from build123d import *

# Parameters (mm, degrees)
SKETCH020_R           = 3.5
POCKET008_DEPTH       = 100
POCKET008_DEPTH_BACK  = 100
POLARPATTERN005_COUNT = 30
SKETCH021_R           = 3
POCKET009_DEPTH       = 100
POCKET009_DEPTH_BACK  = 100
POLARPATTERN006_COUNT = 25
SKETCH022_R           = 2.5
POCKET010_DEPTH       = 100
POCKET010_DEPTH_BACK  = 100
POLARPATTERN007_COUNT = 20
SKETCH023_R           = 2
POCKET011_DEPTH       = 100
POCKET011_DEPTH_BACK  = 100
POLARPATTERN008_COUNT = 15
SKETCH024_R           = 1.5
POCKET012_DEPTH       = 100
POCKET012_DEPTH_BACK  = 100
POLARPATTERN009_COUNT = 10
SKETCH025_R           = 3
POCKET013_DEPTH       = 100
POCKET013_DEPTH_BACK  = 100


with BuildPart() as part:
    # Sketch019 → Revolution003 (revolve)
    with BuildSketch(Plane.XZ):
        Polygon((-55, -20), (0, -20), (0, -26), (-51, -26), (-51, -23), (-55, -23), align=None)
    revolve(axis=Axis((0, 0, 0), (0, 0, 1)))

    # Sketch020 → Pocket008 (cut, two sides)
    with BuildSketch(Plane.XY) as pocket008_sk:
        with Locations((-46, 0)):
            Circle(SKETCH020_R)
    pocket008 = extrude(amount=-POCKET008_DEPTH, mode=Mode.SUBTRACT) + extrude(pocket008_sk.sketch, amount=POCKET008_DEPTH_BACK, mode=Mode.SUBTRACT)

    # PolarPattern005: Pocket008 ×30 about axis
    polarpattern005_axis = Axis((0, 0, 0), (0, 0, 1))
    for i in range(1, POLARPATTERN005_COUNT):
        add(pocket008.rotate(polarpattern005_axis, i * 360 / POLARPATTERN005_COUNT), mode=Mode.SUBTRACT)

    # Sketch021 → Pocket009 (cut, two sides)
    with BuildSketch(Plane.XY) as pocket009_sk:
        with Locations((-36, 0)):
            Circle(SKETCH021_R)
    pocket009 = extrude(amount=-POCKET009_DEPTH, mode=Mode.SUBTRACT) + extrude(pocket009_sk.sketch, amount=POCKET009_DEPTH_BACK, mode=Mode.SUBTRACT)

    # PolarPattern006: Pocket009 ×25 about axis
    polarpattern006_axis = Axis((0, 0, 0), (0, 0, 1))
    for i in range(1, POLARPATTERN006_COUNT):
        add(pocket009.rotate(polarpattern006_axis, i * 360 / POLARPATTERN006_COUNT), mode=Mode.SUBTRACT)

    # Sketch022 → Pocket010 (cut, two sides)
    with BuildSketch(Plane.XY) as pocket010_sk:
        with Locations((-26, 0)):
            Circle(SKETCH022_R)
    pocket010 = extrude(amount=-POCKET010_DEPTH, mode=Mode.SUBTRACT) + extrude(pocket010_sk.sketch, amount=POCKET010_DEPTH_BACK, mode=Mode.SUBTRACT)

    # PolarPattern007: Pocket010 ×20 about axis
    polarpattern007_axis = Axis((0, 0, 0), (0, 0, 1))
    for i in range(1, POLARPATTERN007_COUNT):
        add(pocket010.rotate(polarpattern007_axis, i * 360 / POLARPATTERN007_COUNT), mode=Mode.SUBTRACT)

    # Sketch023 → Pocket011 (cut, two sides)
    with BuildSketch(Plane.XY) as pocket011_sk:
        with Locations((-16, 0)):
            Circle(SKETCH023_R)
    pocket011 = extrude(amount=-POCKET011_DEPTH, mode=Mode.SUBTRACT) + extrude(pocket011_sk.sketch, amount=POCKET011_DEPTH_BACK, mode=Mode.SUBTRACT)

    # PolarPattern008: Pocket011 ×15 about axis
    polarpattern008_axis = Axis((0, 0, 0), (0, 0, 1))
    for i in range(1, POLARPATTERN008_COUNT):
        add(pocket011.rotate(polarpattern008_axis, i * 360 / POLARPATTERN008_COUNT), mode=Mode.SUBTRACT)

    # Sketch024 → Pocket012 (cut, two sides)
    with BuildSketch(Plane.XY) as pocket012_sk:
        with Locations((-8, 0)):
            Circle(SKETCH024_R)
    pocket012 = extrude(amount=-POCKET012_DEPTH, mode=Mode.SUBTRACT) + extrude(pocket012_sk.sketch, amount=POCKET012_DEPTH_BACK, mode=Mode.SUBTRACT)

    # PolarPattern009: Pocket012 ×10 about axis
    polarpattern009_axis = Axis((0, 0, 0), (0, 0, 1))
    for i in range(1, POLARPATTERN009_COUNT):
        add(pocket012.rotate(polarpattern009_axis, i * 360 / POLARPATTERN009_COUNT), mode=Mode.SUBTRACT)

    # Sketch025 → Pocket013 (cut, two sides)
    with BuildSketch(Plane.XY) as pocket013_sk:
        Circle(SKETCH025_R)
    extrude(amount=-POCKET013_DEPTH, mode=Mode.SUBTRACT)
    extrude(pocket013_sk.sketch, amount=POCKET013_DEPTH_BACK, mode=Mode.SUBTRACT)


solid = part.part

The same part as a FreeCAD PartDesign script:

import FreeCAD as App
import Part
import Sketcher
from FreeCAD import Vector

doc = App.newDocument("Part")
body = doc.addObject("PartDesign::Body", "Body")

sketch1 = body.newObject("Sketcher::SketchObject", "Sketch")
sketch1.AttachmentSupport = (doc.getObject("XZ_Plane"), [""])
sketch1.MapMode = "FlatFace"
sketch1.addGeometry([
    Part.LineSegment(Vector(0, -20, 0), Vector(-55, -20, 0)),
    Part.LineSegment(Vector(-55, -20, 0), Vector(-55, -23, 0)),
    Part.LineSegment(Vector(-55, -23, 0), Vector(-51, -23, 0)),
    Part.LineSegment(Vector(-51, -23, 0), Vector(-51, -26, 0)),
    Part.LineSegment(Vector(-51, -26, 0), Vector(0, -26, 0)),
    Part.LineSegment(Vector(0, -26, 0), Vector(0, -20, 0)),
], False)
sketch1.addConstraint([
    Sketcher.Constraint("Coincident", 0, 2, 1, 1),
    Sketcher.Constraint("Coincident", 1, 2, 2, 1),
    Sketcher.Constraint("Coincident", 2, 2, 3, 1),
    Sketcher.Constraint("Coincident", 3, 2, 4, 1),
    Sketcher.Constraint("Coincident", 4, 2, 5, 1),
    Sketcher.Constraint("Coincident", 5, 2, 0, 1),
    Sketcher.Constraint("Horizontal", 0),
    Sketcher.Constraint("Vertical", 1),
    Sketcher.Constraint("Horizontal", 2),
    Sketcher.Constraint("Vertical", 3),
    Sketcher.Constraint("Horizontal", 4),
    Sketcher.Constraint("Vertical", 5),
    Sketcher.Constraint("PointOnObject", 4, 2, -2),
    Sketcher.Constraint("Equal", 1, 3),
    Sketcher.Constraint("DistanceX", 0, 2, 0, 1, 55.0),
    Sketcher.Constraint("DistanceX", 2, 1, 2, 2, 4.0),
    Sketcher.Constraint("DistanceY", 1, 2, 1, 1, 3.0),
    Sketcher.Constraint("DistanceY", 0, 2, -1, 1, 20.0),
])
revolution = body.newObject("PartDesign::Revolution", "Revolution")
revolution.Profile = sketch1
revolution.ReferenceAxis = (sketch1, ["V_Axis"])
revolution.Angle = 360

sketch2 = body.newObject("Sketcher::SketchObject", "Sketch001")
sketch2.AttachmentSupport = (doc.getObject("XY_Plane"), [""])
sketch2.MapMode = "FlatFace"
sketch2.addGeometry(Part.Circle(Vector(-46, 0, 0), Vector(0, 0, 1), 3.5), False)
sketch2.addConstraint([
    Sketcher.Constraint("PointOnObject", 0, 3, -1),
    Sketcher.Constraint("Diameter", 0, 7.0),
    Sketcher.Constraint("DistanceX", 0, 3, -1, 1, 46.0),
])
pocket1 = body.newObject("PartDesign::Pocket", "Pocket")
pocket1.Profile = sketch2
pocket1.Type = "ThroughAll"
pocket1.Midplane = True
doc.recompute()

polarpattern = body.newObject("PartDesign::PolarPattern", "PolarPattern")
polarpattern.Originals = [pocket1]
polarpattern.Axis = (doc.getObject("Z_Axis"), [""])
polarpattern.Angle = 360
polarpattern.Occurrences = 30
body.Tip = polarpattern

sketch3 = body.newObject("Sketcher::SketchObject", "Sketch002")
sketch3.AttachmentSupport = (doc.getObject("XY_Plane"), [""])
sketch3.MapMode = "FlatFace"
sketch3.addGeometry(Part.Circle(Vector(-36, 0, 0), Vector(0, 0, 1), 3), False)
sketch3.addConstraint([
    Sketcher.Constraint("PointOnObject", 0, 3, -1),
    Sketcher.Constraint("Diameter", 0, 6.0),
    Sketcher.Constraint("DistanceX", 0, 3, -1, 1, 36.0),
])
pocket2 = body.newObject("PartDesign::Pocket", "Pocket001")
pocket2.Profile = sketch3
pocket2.Type = "ThroughAll"
pocket2.Midplane = True
doc.recompute()

polarpattern2 = body.newObject("PartDesign::PolarPattern", "PolarPattern001")
polarpattern2.Originals = [pocket2]
polarpattern2.Axis = (doc.getObject("Z_Axis"), [""])
polarpattern2.Angle = 360
polarpattern2.Occurrences = 25
body.Tip = polarpattern2

sketch4 = body.newObject("Sketcher::SketchObject", "Sketch003")
sketch4.AttachmentSupport = (doc.getObject("XY_Plane"), [""])
sketch4.MapMode = "FlatFace"
sketch4.addGeometry(Part.Circle(Vector(-26, 0, 0), Vector(0, 0, 1), 2.5), False)
sketch4.addConstraint([
    Sketcher.Constraint("PointOnObject", 0, 3, -1),
    Sketcher.Constraint("Diameter", 0, 5.0),
    Sketcher.Constraint("DistanceX", 0, 3, -1, 1, 26.0),
])
pocket3 = body.newObject("PartDesign::Pocket", "Pocket002")
pocket3.Profile = sketch4
pocket3.Type = "ThroughAll"
pocket3.Midplane = True
doc.recompute()

polarpattern3 = body.newObject("PartDesign::PolarPattern", "PolarPattern002")
polarpattern3.Originals = [pocket3]
polarpattern3.Axis = (doc.getObject("Z_Axis"), [""])
polarpattern3.Angle = 360
polarpattern3.Occurrences = 20
body.Tip = polarpattern3

sketch5 = body.newObject("Sketcher::SketchObject", "Sketch004")
sketch5.AttachmentSupport = (doc.getObject("XY_Plane"), [""])
sketch5.MapMode = "FlatFace"
sketch5.addGeometry(Part.Circle(Vector(-16, 0, 0), Vector(0, 0, 1), 2), False)
sketch5.addConstraint([
    Sketcher.Constraint("PointOnObject", 0, 3, -1),
    Sketcher.Constraint("Diameter", 0, 4.0),
    Sketcher.Constraint("DistanceX", 0, 3, -1, 1, 16.0),
])
pocket4 = body.newObject("PartDesign::Pocket", "Pocket003")
pocket4.Profile = sketch5
pocket4.Type = "ThroughAll"
pocket4.Midplane = True
doc.recompute()

polarpattern4 = body.newObject("PartDesign::PolarPattern", "PolarPattern003")
polarpattern4.Originals = [pocket4]
polarpattern4.Axis = (doc.getObject("Z_Axis"), [""])
polarpattern4.Angle = 360
polarpattern4.Occurrences = 15
body.Tip = polarpattern4

sketch6 = body.newObject("Sketcher::SketchObject", "Sketch005")
sketch6.AttachmentSupport = (doc.getObject("XY_Plane"), [""])
sketch6.MapMode = "FlatFace"
sketch6.addGeometry(Part.Circle(Vector(-8, 0, 0), Vector(0, 0, 1), 1.5), False)
sketch6.addConstraint([
    Sketcher.Constraint("PointOnObject", 0, 3, -1),
    Sketcher.Constraint("Diameter", 0, 3.0),
    Sketcher.Constraint("DistanceX", 0, 3, -1, 1, 8.0),
])
pocket5 = body.newObject("PartDesign::Pocket", "Pocket004")
pocket5.Profile = sketch6
pocket5.Type = "ThroughAll"
pocket5.Midplane = True
doc.recompute()

polarpattern5 = body.newObject("PartDesign::PolarPattern", "PolarPattern004")
polarpattern5.Originals = [pocket5]
polarpattern5.Axis = (doc.getObject("Z_Axis"), [""])
polarpattern5.Angle = 360
polarpattern5.Occurrences = 10
body.Tip = polarpattern5

sketch7 = body.newObject("Sketcher::SketchObject", "Sketch006")
sketch7.AttachmentSupport = (doc.getObject("XY_Plane"), [""])
sketch7.MapMode = "FlatFace"
sketch7.addGeometry(Part.Circle(Vector(0, 0, 0), Vector(0, 0, 1), 3), False)
sketch7.addConstraint([
    Sketcher.Constraint("Coincident", 0, 3, -1, 1),
    Sketcher.Constraint("Diameter", 0, 6.0),
])
pocket6 = body.newObject("PartDesign::Pocket", "Pocket005")
pocket6.Profile = sketch7
pocket6.Type = "ThroughAll"
pocket6.Midplane = True

doc.recompute()
